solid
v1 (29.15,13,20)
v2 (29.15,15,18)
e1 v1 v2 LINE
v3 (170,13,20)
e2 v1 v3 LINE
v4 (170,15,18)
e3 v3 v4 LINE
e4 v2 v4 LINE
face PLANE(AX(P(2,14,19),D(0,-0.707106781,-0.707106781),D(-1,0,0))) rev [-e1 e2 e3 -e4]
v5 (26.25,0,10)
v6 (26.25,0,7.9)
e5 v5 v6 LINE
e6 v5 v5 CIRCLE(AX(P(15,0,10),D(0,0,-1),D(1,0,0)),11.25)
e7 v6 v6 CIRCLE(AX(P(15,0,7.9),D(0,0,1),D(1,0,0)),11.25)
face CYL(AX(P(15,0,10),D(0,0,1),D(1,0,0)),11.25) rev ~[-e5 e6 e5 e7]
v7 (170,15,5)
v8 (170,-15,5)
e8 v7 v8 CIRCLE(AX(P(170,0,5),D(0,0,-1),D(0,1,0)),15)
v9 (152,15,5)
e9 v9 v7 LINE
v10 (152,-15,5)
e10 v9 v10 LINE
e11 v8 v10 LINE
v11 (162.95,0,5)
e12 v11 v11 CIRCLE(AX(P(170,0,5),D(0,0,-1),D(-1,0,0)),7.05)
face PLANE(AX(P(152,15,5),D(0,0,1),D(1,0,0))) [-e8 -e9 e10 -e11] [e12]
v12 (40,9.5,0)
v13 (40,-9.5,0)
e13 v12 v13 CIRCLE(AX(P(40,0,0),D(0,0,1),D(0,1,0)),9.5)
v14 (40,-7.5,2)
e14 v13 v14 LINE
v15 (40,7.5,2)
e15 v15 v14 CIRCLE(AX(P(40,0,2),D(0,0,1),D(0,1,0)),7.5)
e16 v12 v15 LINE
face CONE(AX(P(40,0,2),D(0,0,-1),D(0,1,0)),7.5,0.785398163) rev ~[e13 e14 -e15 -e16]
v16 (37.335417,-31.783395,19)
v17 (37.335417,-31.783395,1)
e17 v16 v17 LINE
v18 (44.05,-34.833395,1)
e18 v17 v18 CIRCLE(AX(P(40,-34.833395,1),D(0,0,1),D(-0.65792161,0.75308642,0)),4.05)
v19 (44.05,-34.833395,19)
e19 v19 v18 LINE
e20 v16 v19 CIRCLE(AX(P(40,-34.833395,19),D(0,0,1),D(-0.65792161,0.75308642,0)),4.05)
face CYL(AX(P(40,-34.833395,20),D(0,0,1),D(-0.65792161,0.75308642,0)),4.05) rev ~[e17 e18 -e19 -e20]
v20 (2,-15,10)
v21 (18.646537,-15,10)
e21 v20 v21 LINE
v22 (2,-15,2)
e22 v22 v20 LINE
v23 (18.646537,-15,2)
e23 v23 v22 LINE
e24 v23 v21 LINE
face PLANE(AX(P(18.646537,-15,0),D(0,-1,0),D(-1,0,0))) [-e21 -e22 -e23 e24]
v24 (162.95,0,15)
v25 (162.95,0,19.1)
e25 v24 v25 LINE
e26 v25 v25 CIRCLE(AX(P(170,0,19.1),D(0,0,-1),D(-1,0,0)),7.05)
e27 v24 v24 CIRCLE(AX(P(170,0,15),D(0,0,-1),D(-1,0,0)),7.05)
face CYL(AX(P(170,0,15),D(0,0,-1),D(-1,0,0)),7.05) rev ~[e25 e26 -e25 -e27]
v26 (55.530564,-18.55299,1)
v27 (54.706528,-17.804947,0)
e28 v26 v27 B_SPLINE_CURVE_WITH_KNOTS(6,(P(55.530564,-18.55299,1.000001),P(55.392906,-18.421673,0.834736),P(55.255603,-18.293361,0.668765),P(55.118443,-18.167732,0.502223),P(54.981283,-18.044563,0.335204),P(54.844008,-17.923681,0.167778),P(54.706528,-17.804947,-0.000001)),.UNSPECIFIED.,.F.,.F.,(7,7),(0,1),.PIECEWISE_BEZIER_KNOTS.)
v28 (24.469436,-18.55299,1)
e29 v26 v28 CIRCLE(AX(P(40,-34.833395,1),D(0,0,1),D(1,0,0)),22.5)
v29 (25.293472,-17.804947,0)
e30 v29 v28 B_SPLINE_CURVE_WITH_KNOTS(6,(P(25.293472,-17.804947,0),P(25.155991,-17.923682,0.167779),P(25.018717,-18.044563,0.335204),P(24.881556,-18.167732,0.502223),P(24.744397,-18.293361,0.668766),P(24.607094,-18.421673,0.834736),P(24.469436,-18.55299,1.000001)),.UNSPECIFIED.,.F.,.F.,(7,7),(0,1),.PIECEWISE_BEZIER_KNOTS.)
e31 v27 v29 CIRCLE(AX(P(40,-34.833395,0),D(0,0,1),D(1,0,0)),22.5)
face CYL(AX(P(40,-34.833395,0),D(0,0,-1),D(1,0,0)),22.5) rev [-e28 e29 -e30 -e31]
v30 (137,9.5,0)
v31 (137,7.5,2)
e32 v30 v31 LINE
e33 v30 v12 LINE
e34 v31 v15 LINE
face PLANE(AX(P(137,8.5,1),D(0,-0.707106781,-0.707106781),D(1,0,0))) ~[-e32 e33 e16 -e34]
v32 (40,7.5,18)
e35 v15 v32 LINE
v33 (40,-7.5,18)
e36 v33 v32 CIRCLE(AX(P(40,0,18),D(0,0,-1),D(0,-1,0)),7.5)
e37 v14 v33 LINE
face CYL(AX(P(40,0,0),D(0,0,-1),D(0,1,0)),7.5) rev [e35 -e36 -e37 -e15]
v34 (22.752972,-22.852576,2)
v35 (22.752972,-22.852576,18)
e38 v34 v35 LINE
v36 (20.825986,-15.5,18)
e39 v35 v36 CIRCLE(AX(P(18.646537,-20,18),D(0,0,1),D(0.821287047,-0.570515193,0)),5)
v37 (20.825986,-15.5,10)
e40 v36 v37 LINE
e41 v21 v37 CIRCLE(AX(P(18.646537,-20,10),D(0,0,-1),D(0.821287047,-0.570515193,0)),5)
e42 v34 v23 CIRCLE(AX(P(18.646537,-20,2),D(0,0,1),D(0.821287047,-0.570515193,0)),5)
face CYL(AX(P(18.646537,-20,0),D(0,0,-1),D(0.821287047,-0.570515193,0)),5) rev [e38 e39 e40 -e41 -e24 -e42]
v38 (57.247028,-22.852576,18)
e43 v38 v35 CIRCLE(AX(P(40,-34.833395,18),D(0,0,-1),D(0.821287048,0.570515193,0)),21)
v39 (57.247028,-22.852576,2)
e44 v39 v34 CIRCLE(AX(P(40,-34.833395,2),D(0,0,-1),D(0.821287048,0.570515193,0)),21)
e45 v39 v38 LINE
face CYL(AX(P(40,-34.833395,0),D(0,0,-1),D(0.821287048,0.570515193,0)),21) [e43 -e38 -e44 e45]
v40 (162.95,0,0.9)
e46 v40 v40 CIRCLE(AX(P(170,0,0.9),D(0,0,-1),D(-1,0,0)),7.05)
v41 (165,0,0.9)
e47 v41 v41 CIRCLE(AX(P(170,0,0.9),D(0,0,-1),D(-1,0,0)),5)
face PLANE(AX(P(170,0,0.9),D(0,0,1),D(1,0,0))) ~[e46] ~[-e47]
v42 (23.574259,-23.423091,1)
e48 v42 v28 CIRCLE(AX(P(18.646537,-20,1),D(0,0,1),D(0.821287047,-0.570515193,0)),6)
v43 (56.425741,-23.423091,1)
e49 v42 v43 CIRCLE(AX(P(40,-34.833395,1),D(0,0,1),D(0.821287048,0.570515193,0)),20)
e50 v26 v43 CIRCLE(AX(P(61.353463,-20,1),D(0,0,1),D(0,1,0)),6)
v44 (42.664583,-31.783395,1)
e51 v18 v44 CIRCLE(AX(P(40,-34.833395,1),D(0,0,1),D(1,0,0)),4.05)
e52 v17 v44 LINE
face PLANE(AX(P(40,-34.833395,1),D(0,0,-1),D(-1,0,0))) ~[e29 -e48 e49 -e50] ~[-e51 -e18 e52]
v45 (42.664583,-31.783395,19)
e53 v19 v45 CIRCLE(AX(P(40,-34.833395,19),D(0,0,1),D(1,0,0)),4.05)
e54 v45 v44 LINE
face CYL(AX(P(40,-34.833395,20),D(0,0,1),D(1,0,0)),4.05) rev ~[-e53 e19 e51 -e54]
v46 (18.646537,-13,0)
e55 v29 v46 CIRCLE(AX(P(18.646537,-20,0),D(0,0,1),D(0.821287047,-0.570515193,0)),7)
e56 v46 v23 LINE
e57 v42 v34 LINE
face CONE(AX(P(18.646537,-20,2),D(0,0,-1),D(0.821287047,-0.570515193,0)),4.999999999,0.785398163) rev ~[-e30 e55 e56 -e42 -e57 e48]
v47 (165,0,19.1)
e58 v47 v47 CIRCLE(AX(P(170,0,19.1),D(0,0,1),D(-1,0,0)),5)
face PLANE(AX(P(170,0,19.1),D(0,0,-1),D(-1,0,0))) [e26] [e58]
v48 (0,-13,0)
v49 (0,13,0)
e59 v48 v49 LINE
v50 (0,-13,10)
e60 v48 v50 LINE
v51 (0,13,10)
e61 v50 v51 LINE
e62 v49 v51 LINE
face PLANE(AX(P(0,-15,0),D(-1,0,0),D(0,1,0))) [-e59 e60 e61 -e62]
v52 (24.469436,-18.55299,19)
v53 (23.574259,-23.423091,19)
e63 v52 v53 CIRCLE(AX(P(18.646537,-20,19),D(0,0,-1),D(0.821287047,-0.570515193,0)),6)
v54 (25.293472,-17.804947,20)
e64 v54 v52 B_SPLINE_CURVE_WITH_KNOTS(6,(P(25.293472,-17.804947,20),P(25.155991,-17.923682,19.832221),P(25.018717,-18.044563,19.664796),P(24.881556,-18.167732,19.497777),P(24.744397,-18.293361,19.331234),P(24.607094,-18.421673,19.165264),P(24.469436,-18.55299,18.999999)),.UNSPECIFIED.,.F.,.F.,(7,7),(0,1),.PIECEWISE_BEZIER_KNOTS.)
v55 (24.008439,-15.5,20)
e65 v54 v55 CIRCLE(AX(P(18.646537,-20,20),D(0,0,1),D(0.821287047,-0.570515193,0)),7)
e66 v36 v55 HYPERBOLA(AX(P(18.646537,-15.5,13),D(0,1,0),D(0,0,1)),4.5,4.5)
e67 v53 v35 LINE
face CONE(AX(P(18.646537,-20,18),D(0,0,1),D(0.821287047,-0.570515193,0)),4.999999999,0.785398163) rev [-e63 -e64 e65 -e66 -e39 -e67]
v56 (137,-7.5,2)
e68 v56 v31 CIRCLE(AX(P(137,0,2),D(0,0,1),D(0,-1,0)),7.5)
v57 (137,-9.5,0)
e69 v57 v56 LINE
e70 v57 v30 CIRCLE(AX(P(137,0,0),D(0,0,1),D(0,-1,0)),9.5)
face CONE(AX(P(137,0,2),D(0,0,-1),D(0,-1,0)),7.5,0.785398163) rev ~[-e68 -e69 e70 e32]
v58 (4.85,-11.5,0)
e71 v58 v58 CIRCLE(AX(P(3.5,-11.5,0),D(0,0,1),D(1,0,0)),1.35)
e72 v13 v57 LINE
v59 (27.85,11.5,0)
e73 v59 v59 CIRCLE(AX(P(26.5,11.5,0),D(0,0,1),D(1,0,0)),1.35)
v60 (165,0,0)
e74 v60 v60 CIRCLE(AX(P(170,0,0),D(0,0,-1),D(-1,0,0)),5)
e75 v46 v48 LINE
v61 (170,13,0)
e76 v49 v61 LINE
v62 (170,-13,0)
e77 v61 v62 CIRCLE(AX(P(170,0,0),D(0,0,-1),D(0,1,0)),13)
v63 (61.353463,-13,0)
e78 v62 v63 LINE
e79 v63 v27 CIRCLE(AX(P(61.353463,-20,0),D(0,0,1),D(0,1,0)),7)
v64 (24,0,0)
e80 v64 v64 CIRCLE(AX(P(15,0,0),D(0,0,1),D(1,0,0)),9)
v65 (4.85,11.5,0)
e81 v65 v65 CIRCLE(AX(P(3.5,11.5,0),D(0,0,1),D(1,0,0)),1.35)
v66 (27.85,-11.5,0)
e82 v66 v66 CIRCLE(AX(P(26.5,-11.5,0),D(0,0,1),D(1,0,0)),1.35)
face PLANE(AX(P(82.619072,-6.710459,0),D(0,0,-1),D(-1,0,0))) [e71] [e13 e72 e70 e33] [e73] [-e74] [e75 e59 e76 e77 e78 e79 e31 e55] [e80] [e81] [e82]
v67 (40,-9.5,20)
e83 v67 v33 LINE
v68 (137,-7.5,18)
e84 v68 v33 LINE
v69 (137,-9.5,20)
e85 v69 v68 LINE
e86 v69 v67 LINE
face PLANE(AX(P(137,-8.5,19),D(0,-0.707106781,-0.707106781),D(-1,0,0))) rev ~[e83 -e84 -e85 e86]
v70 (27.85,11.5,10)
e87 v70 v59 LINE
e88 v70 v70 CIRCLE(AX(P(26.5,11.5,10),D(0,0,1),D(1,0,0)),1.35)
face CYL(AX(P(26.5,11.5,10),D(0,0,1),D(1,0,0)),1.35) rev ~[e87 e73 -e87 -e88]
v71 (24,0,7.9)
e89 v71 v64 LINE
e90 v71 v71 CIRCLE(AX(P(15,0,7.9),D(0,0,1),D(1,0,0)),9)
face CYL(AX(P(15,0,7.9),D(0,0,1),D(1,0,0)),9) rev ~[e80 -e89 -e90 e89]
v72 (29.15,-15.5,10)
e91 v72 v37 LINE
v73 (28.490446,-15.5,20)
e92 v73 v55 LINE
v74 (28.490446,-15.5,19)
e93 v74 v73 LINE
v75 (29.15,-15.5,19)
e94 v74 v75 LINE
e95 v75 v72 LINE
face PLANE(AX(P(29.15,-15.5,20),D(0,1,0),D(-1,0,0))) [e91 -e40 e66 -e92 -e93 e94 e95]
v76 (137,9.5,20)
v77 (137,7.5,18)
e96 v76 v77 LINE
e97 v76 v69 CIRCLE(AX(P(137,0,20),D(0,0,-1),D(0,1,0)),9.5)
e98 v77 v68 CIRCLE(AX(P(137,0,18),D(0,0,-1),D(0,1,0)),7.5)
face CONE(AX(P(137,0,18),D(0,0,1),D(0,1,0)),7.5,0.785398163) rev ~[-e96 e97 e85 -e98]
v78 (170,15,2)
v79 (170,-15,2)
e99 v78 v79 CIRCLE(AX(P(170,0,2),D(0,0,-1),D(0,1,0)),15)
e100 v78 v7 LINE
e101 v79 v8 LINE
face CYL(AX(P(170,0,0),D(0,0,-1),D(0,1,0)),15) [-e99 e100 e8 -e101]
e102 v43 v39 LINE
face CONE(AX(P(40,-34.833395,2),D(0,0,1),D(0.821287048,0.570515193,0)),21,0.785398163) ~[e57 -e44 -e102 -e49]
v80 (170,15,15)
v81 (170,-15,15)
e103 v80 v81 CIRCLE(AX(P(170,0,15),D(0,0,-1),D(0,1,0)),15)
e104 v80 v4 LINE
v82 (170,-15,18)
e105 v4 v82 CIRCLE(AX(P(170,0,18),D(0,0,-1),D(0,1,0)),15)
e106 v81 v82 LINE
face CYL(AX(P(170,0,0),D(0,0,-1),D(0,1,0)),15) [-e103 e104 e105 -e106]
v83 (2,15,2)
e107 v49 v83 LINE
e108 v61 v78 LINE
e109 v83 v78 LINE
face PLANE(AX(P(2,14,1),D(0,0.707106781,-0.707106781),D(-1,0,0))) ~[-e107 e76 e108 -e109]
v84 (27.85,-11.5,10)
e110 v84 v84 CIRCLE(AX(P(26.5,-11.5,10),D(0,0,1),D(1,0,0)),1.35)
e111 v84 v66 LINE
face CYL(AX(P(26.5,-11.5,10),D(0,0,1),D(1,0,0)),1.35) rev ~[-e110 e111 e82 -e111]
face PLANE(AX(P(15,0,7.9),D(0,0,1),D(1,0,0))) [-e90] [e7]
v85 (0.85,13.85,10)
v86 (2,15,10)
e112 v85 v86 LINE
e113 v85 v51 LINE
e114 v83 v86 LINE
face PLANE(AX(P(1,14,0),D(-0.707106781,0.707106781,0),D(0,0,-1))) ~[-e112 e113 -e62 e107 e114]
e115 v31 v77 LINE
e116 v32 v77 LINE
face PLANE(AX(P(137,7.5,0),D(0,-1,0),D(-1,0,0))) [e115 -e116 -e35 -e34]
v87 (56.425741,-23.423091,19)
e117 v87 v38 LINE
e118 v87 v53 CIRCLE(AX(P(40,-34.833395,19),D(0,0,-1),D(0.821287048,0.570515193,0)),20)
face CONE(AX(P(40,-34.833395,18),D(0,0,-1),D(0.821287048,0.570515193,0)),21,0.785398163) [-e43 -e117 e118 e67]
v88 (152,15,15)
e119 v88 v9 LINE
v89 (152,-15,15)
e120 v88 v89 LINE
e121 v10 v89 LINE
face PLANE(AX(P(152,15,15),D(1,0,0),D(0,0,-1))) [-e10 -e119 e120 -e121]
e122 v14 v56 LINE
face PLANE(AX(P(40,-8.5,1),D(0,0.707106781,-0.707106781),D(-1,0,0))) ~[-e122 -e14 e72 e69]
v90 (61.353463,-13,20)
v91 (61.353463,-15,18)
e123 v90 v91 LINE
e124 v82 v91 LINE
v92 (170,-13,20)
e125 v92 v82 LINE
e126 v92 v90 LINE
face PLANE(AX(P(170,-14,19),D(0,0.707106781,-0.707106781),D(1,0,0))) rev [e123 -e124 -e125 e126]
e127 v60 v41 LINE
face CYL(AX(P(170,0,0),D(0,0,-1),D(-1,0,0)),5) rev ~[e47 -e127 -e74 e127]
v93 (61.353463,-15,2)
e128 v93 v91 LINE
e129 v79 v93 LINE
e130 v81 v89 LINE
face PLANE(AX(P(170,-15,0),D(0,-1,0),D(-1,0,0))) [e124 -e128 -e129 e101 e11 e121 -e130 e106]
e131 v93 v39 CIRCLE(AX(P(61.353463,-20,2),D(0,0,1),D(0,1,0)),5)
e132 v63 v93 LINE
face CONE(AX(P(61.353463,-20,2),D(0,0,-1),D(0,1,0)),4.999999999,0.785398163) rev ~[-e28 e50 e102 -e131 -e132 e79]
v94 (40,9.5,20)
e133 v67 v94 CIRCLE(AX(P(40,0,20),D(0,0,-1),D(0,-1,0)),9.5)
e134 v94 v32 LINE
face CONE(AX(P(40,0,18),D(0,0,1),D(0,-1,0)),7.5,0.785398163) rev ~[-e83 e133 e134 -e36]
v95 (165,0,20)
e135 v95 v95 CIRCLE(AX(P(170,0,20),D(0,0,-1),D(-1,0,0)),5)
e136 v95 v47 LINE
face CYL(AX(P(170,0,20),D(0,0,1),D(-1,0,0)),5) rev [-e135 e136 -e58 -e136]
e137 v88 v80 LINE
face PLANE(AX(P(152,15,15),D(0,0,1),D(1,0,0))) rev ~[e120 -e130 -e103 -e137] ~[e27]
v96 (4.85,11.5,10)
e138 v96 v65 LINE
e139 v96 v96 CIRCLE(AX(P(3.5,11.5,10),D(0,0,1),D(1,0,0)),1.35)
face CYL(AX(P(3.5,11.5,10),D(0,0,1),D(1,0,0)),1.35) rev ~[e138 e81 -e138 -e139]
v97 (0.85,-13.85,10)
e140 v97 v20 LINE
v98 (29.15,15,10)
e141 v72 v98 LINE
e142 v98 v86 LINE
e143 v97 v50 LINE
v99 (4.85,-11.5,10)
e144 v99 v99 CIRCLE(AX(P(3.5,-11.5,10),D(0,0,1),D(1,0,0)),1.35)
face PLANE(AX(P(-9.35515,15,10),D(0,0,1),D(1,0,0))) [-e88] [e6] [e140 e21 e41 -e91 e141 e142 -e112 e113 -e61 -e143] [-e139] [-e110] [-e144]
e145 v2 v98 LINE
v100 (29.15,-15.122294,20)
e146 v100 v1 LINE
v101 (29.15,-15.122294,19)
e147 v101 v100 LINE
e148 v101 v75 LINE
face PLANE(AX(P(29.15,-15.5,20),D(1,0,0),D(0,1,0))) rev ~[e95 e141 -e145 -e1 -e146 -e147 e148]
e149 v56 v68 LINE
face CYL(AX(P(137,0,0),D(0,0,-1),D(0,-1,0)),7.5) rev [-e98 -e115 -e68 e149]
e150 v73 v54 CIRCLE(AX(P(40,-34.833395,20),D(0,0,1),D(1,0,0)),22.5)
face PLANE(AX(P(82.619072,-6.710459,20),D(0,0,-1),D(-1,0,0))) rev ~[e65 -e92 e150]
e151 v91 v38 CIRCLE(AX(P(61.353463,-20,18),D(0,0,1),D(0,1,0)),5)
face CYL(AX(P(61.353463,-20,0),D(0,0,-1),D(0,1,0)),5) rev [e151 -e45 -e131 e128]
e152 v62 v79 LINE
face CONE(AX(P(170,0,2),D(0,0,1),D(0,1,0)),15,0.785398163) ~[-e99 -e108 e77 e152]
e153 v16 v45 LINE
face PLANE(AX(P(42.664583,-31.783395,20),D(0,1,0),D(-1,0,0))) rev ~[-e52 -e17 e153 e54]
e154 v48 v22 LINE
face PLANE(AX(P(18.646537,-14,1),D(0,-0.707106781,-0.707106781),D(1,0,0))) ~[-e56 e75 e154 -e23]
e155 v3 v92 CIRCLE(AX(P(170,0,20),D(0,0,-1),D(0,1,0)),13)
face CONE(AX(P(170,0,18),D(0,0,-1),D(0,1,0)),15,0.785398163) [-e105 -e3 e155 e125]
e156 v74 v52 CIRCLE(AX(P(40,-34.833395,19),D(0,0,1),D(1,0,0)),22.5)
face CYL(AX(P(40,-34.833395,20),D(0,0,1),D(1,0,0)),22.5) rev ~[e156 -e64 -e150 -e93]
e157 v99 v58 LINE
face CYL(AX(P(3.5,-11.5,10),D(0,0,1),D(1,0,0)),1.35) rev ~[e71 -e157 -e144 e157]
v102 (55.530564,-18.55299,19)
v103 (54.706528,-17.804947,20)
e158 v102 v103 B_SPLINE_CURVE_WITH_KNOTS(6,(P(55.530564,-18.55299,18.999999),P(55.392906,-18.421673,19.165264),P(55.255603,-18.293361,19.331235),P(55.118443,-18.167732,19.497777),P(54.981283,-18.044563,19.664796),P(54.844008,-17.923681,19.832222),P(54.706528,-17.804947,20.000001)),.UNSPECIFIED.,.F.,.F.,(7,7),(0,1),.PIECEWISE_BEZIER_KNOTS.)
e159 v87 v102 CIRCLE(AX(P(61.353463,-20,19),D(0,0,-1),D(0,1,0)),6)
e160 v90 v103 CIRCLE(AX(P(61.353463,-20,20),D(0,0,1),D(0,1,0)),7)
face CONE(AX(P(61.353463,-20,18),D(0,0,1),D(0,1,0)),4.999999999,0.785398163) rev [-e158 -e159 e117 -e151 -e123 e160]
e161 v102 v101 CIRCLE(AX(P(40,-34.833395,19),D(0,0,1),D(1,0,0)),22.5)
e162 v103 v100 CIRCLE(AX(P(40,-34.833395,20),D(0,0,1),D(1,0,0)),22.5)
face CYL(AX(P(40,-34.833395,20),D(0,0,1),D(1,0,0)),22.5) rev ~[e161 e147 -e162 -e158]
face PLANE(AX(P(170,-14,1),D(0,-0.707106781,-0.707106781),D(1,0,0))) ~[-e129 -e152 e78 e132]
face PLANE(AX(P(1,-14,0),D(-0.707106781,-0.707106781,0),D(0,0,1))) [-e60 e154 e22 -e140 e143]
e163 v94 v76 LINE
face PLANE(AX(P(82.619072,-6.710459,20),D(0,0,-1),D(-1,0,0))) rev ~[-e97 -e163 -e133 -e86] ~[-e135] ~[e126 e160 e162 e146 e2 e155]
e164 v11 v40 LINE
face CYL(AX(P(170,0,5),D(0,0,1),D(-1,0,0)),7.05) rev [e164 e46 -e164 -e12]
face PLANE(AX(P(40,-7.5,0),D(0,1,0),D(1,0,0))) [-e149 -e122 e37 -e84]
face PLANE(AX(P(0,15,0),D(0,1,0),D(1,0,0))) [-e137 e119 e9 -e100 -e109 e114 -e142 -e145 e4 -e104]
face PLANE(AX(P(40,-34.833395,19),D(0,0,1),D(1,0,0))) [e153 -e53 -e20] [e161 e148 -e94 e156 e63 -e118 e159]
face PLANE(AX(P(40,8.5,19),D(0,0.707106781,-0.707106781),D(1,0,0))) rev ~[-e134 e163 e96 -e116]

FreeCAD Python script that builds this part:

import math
import FreeCAD as App
import Part
import Sketcher


def edges_at(feature, points):
    """Names of the edges that pass closest to the given points."""
    edges = feature.Shape.Edges
    near = lambda p: min(range(len(edges)), key=lambda i: edges[i].distToShape(Part.Vertex(*p))[0])
    return sorted({f"Edge{near(p) + 1}" for p in points})

doc = App.newDocument("Part")
params = doc.addObject("Spreadsheet::Sheet", "Params")
for row, (alias, value) in enumerate([
    ("sketch1_radius", "5 mm"),
    ("sketch1_radius2", "21 mm"),
    ("sketch1_radius3", "15 mm"),
    ("sketch1_width", "170 mm"),
    ("pad1_length", "20 mm"),
    ("chamfer_size", "2 mm"),
    ("sketch2_diameter", "10 mm"),
    ("pocket1_length", "5 mm"),
    ("sketch3_width", "36 mm"),
    ("sketch3_height", "10 mm"),
    ("sketch4_radius", "7.5 mm"),
    ("sketch4_width", "97 mm"),
    ("chamfer2_size", "2 mm"),
    ("chamfer3_size", "2 mm"),
    ("chamfer4_size", "2 mm"),
    ("sketch5_height", "31 mm"),
    ("sketch5_width", "28.3 mm"),
    ("pocket4_length", "10 mm"),
    ("sketch6_diameter", "22.5 mm"),
    ("pocket5_length", "2.1 mm"),
    ("sketch7_diameter", "2.7 mm"),
    ("sketch8_radius", "4.05 mm"),
    ("sketch10_diameter", "18 mm"),
    ("sketch11_diameter", "14.1 mm"),
    ("pocket10_length", "4.1 mm"),
    ("sketch12_diameter", "45 mm"),
    ("pocket11_length", "1 mm"),
], start=1):
    params.set(f"A{row}", alias)
    params.set(f"B{row}", "=" + value)
    params.setAlias(f"B{row}", alias)

body = doc.addObject("PartDesign::Body", "Body")

# Sketch on XY plane
sketch1 = doc.addObject("Sketcher::SketchObject", "Sketch")
body.addObject(sketch1)
sketch1.AttachmentSupport = (doc.XY_Plane, [""])
sketch1.MapMode = "FlatFace"
sketch1.addGeometry(Part.LineSegment(App.Vector(170, 15, 0), App.Vector(0, 15, 0)), False)
sketch1.addGeometry(Part.LineSegment(App.Vector(0, 15, 0), App.Vector(0, -15, 0)), False)
sketch1.addGeometry(Part.LineSegment(App.Vector(0, -15, 0), App.Vector(18.6, -15, 0)), False)
sketch1.addGeometry(Part.ArcOfCircle(Part.Circle(App.Vector(18.6, -20, 0), App.Vector(0, 0, 1), 5), math.radians(-35), math.radians(90)), False)
sketch1.addGeometry(Part.ArcOfCircle(Part.Circle(App.Vector(40, -34.8, 0), App.Vector(0, 0, 1), 21), math.radians(145), math.radians(395)), False)
sketch1.addGeometry(Part.ArcOfCircle(Part.Circle(App.Vector(61.4, -20, 0), App.Vector(0, 0, 1), 5), math.radians(90), math.radians(215)), False)
sketch1.addGeometry(Part.LineSegment(App.Vector(61.4, -15, 0), App.Vector(170, -15, 0)), False)
sketch1.addGeometry(Part.ArcOfCircle(Part.Circle(App.Vector(170, 0, 0), App.Vector(0, 0, 1), 15), math.radians(-90), math.radians(90)), False)
sketch1.addConstraint(Sketcher.Constraint("Coincident", 0, 2, 1, 1))
sketch1.addConstraint(Sketcher.Constraint("Coincident", 1, 2, 2, 1))
sketch1.addConstraint(Sketcher.Constraint("Tangent", 2, 2, 3, 2))
sketch1.addConstraint(Sketcher.Constraint("Tangent", 3, 1, 4, 1))
sketch1.addConstraint(Sketcher.Constraint("Tangent", 4, 2, 5, 2))
sketch1.addConstraint(Sketcher.Constraint("Tangent", 5, 1, 6, 1))
sketch1.addConstraint(Sketcher.Constraint("Tangent", 6, 2, 7, 1))
sketch1.addConstraint(Sketcher.Constraint("Tangent", 7, 2, 0, 1))
sketch1.addConstraint(Sketcher.Constraint("Horizontal", 0))
sketch1.addConstraint(Sketcher.Constraint("Vertical", 1))
sketch1.addConstraint(Sketcher.Constraint("Horizontal", 2))
sketch1.addConstraint(Sketcher.Constraint("Horizontal", 6))
sketch1.addConstraint(Sketcher.Constraint("Equal", 3, 5))
sketch1.addConstraint(Sketcher.Constraint("Symmetric", 0, 2, 1, 2, -1, 1))
sketch1.addConstraint(Sketcher.Constraint("PointOnObject", 7, 3, -1))
sketch1.addConstraint(Sketcher.Constraint("Radius", 3, 5.0))
sketch1.addConstraint(Sketcher.Constraint("Radius", 4, 21.0))
sketch1.addConstraint(Sketcher.Constraint("Radius", 7, 15.0))
sketch1.addConstraint(Sketcher.Constraint("DistanceX", 0, 2, 0, 1, 170.0))
sketch1.addConstraint(Sketcher.Constraint("DistanceX", -1, 1, 4, 3, 40.0))
sketch1.addConstraint(Sketcher.Constraint("DistanceX", 2, 1, 2, 2, 18.646537))
sketch1.setExpression("Constraints[15]", "Params.sketch1_radius")
sketch1.setExpression("Constraints[16]", "Params.sketch1_radius2")
sketch1.setExpression("Constraints[17]", "Params.sketch1_radius3")
sketch1.setExpression("Constraints[18]", "Params.sketch1_width")
pad1 = doc.addObject("PartDesign::Pad", "Pad")
body.addObject(pad1)
pad1.Profile = sketch1
pad1.setExpression("Length", "Params.pad1_length")
doc.recompute()

chamfer = doc.addObject("PartDesign::Chamfer", "Chamfer")
body.addObject(chamfer)
chamfer.Base = (pad1, edges_at(pad1, [(0, -15, 10), (0, 15, 10)]))
chamfer.setExpression("Size", "Params.chamfer_size")

# Sketch on XY plane
sketch2 = doc.addObject("Sketcher::SketchObject", "Sketch001")
body.addObject(sketch2)
sketch2.AttachmentSupport = (doc.XY_Plane, [""])
sketch2.MapMode = "FlatFace"
sketch2.addGeometry(Part.Circle(App.Vector(170, 0, 0), App.Vector(0, 0, 1), 5), False)
sketch2.addConstraint(Sketcher.Constraint("PointOnObject", 0, 3, -1))
sketch2.addConstraint(Sketcher.Constraint("Diameter", 0, 10.0))
sketch2.addConstraint(Sketcher.Constraint("DistanceX", -1, 1, 0, 3, 170.0))
sketch2.setExpression("Constraints[1]", "Params.sketch2_diameter")
pocket1 = doc.addObject("PartDesign::Pocket", "Pocket")
body.addObject(pocket1)
pocket1.Profile = sketch2
pocket1.setExpression("Length", "Params.pocket1_length")
pocket1.Reversed = True

# Sketch on XZ plane
sketch3 = doc.addObject("Sketcher::SketchObject", "Sketch002")
body.addObject(sketch3)
sketch3.AttachmentSupport = (doc.XZ_Plane, [""])
sketch3.MapMode = "FlatFace"
sketch3.AttachmentOffset = App.Placement(App.Vector(0, 0, -15), App.Rotation())
sketch3.addGeometry(Part.LineSegment(App.Vector(152, 5, 0), App.Vector(152, 15, 0)), False)
sketch3.addGeometry(Part.LineSegment(App.Vector(152, 15, 0), App.Vector(188, 15, 0)), False)
sketch3.addGeometry(Part.LineSegment(App.Vector(188, 15, 0), App.Vector(188, 5, 0)), False)
sketch3.addGeometry(Part.LineSegment(App.Vector(188, 5, 0), App.Vector(152, 5, 0)), False)
sketch3.addConstraint(Sketcher.Constraint("Coincident", 0, 2, 1, 1))
sketch3.addConstraint(Sketcher.Constraint("Coincident", 1, 2, 2, 1))
sketch3.addConstraint(Sketcher.Constraint("Coincident", 2, 2, 3, 1))
sketch3.addConstraint(Sketcher.Constraint("Coincident", 3, 2, 0, 1))
sketch3.addConstraint(Sketcher.Constraint("Vertical", 0))
sketch3.addConstraint(Sketcher.Constraint("Horizontal", 1))
sketch3.addConstraint(Sketcher.Constraint("Vertical", 2))
sketch3.addConstraint(Sketcher.Constraint("Horizontal", 3))
sketch3.addConstraint(Sketcher.Constraint("DistanceX", 1, 1, 1, 2, 36.0))
sketch3.addConstraint(Sketcher.Constraint("DistanceY", 0, 1, 0, 2, 10.0))
sketch3.addConstraint(Sketcher.Constraint("DistanceX", -1, 1, 0, 2, 152.0))
sketch3.addConstraint(Sketcher.Constraint("DistanceY", -1, 1, 0, 2, 15.0))
sketch3.setExpression("Constraints[8]", "Params.sketch3_width")
sketch3.setExpression("Constraints[9]", "Params.sketch3_height")
pocket2 = doc.addObject("PartDesign::Pocket", "Pocket001")
body.addObject(pocket2)
pocket2.Profile = sketch3
pocket2.Type = "ThroughAll"
pocket2.Reversed = True

# Sketch on XY plane
sketch4 = doc.addObject("Sketcher::SketchObject", "Sketch003")
body.addObject(sketch4)
sketch4.AttachmentSupport = (doc.XY_Plane, [""])
sketch4.MapMode = "FlatFace"
sketch4.addGeometry(Part.LineSegment(App.Vector(137, -8, 0), App.Vector(40, -8, 0)), False)
sketch4.addGeometry(Part.ArcOfCircle(Part.Circle(App.Vector(40, 0, 0), App.Vector(0, 0, 1), 8), math.radians(90), math.radians(270)), False)
sketch4.addGeometry(Part.LineSegment(App.Vector(40, 8, 0), App.Vector(137, 8, 0)), False)
sketch4.addGeometry(Part.ArcOfCircle(Part.Circle(App.Vector(137, 0, 0), App.Vector(0, 0, 1), 8), math.radians(-90), math.radians(90)), False)
sketch4.addConstraint(Sketcher.Constraint("Tangent", 0, 2, 1, 2))
sketch4.addConstraint(Sketcher.Constraint("Tangent", 1, 1, 2, 1))
sketch4.addConstraint(Sketcher.Constraint("Tangent", 2, 2, 3, 2))
sketch4.addConstraint(Sketcher.Constraint("Tangent", 3, 1, 0, 1))
sketch4.addConstraint(Sketcher.Constraint("Horizontal", 0))
sketch4.addConstraint(Sketcher.Constraint("Horizontal", 2))
sketch4.addConstraint(Sketcher.Constraint("PointOnObject", 1, 3, -1))
sketch4.addConstraint(Sketcher.Constraint("Radius", 1, 7.5))
sketch4.addConstraint(Sketcher.Constraint("DistanceX", 0, 2, 0, 1, 97.0))
sketch4.addConstraint(Sketcher.Constraint("DistanceX", -1, 1, 1, 3, 40.0))
sketch4.setExpression("Constraints[7]", "Params.sketch4_radius")
sketch4.setExpression("Constraints[8]", "Params.sketch4_width")
pocket3 = doc.addObject("PartDesign::Pocket", "Pocket002")
body.addObject(pocket3)
pocket3.Profile = sketch4
pocket3.Type = "ThroughAll"
pocket3.Reversed = True
doc.recompute()

chamfer2 = doc.addObject("PartDesign::Chamfer", "Chamfer001")
body.addObject(chamfer2)
chamfer2.Base = (pocket3, edges_at(pocket3, [
    (32.5, 0, 20),
    (88.5, -7.5, 20),
    (144.5, 0, 20),
    (88.5, 7.5, 20),
    (32.5, 0, 0),
    (88.5, 7.5, 0),
    (144.5, 0, 0),
    (88.5, -7.5, 0),
]))
chamfer2.setExpression("Size", "Params.chamfer2_size")
doc.recompute()

chamfer3 = doc.addObject("PartDesign::Chamfer", "Chamfer002")
body.addObject(chamfer3)
chamfer3.Base = (chamfer2, edges_at(chamfer2, [
    (10.323, -15, 0),
    (23.077, -17.683, 0),
    (40, -55.833, 0),
    (56.923, -17.683, 0),
    (115.677, -15, 0),
    (185, 0, 0),
    (86, 15, 0),
]))
chamfer3.setExpression("Size", "Params.chamfer3_size")
doc.recompute()

chamfer4 = doc.addObject("PartDesign::Chamfer", "Chamfer003")
body.addObject(chamfer4)
chamfer4.Base = (chamfer3, edges_at(chamfer3, [
    (10.323, -15, 20),
    (23.077, -17.683, 20),
    (40, -55.833, 20),
    (56.923, -17.683, 20),
    (115.677, -15, 20),
    (185, 0, 20),
    (86, 15, 20),
]))
chamfer4.setExpression("Size", "Params.chamfer4_size")
doc.recompute()

datumplane = doc.addObject("PartDesign::Plane", "DatumPlane")
body.addObject(datumplane)
datumplane.AttachmentSupport = (doc.XY_Plane, [""])
datumplane.MapMode = "FlatFace"
datumplane.AttachmentOffset = App.Placement(App.Vector(0, 0, 10), App.Rotation())
mirrored = doc.addObject("PartDesign::Mirrored", "Mirrored")
body.addObject(mirrored)
mirrored.Originals = [pocket1]
mirrored.MirrorPlane = (datumplane, [""])
body.Tip = mirrored

# Sketch on XY plane
sketch5 = doc.addObject("Sketcher::SketchObject", "Sketch004")
body.addObject(sketch5)
sketch5.AttachmentSupport = (doc.XY_Plane, [""])
sketch5.MapMode = "FlatFace"
sketch5.AttachmentOffset = App.Placement(App.Vector(0, 0, 20), App.Rotation())
sketch5.addGeometry(Part.LineSegment(App.Vector(29, 16, 0), App.Vector(29, -16, 0)), False)
sketch5.addGeometry(Part.LineSegment(App.Vector(29, -16, 0), App.Vector(1, -16, 0)), False)
sketch5.addGeometry(Part.LineSegment(App.Vector(1, -16, 0), App.Vector(1, 16, 0)), False)
sketch5.addGeometry(Part.LineSegment(App.Vector(1, 16, 0), App.Vector(29, 16, 0)), False)
sketch5.addConstraint(Sketcher.Constraint("Coincident", 0, 2, 1, 1))
sketch5.addConstraint(Sketcher.Constraint("Coincident", 1, 2, 2, 1))
sketch5.addConstraint(Sketcher.Constraint("Coincident", 2, 2, 3, 1))
sketch5.addConstraint(Sketcher.Constraint("Coincident", 3, 2, 0, 1))
sketch5.addConstraint(Sketcher.Constraint("Vertical", 0))
sketch5.addConstraint(Sketcher.Constraint("Horizontal", 1))
sketch5.addConstraint(Sketcher.Constraint("Vertical", 2))
sketch5.addConstraint(Sketcher.Constraint("Horizontal", 3))
sketch5.addConstraint(Sketcher.Constraint("DistanceY", 0, 2, 0, 1, 31.0))
sketch5.addConstraint(Sketcher.Constraint("DistanceX", 1, 2, 1, 1, 28.3))
sketch5.addConstraint(Sketcher.Constraint("DistanceY", 0, 2, -1, 1, 15.5))
sketch5.addConstraint(Sketcher.Constraint("DistanceX", -1, 1, 0, 2, 29.15))
sketch5.setExpression("Constraints[8]", "Params.sketch5_height")
sketch5.setExpression("Constraints[9]", "Params.sketch5_width")
pocket4 = doc.addObject("PartDesign::Pocket", "Pocket003")
body.addObject(pocket4)
pocket4.Profile = sketch5
pocket4.setExpression("Length", "Params.pocket4_length")

# Sketch on XY plane
sketch6 = doc.addObject("Sketcher::SketchObject", "Sketch005")
body.addObject(sketch6)
sketch6.AttachmentSupport = (doc.XY_Plane, [""])
sketch6.MapMode = "FlatFace"
sketch6.AttachmentOffset = App.Placement(App.Vector(0, 0, 10), App.Rotation())
sketch6.addGeometry(Part.Circle(App.Vector(15, 0, 0), App.Vector(0, 0, 1), 11), False)
sketch6.addConstraint(Sketcher.Constraint("PointOnObject", 0, 3, -1))
sketch6.addConstraint(Sketcher.Constraint("Diameter", 0, 22.5))
sketch6.addConstraint(Sketcher.Constraint("DistanceX", -1, 1, 0, 3, 15.0))
sketch6.setExpression("Constraints[1]", "Params.sketch6_diameter")
pocket5 = doc.addObject("PartDesign::Pocket", "Pocket004")
body.addObject(pocket5)
pocket5.Profile = sketch6
pocket5.setExpression("Length", "Params.pocket5_length")

# Sketch on XY plane
sketch7 = doc.addObject("Sketcher::SketchObject", "Sketch006")
body.addObject(sketch7)
sketch7.AttachmentSupport = (doc.XY_Plane, [""])
sketch7.MapMode = "FlatFace"
sketch7.AttachmentOffset = App.Placement(App.Vector(0, 0, 10), App.Rotation())
sketch7.addGeometry(Part.Circle(App.Vector(26.5, 11.5, 0), App.Vector(0, 0, 1), 1.4), False)
sketch7.addGeometry(Part.Circle(App.Vector(3.5, 11.5, 0), App.Vector(0, 0, 1), 1.4), False)
sketch7.addGeometry(Part.Circle(App.Vector(3.5, -11.5, 0), App.Vector(0, 0, 1), 1.4), False)
sketch7.addGeometry(Part.Circle(App.Vector(26.5, -11.5, 0), App.Vector(0, 0, 1), 1.4), False)
sketch7.addConstraint(Sketcher.Constraint("Equal", 0, 1))
sketch7.addConstraint(Sketcher.Constraint("Equal", 1, 2))
sketch7.addConstraint(Sketcher.Constraint("Equal", 2, 3))
sketch7.addConstraint(Sketcher.Constraint("Symmetric", 1, 3, 2, 3, -1))
sketch7.addConstraint(Sketcher.Constraint("Symmetric", 0, 3, 3, 3, -1))
sketch7.addConstraint(Sketcher.Constraint("Horizontal", 0, 3, 1, 3))
sketch7.addConstraint(Sketcher.Constraint("Diameter", 0, 2.7))
sketch7.addConstraint(Sketcher.Constraint("DistanceX", 1, 3, 0, 3, 23.0))
sketch7.addConstraint(Sketcher.Constraint("DistanceY", 2, 3, 1, 3, 23.0))
sketch7.addConstraint(Sketcher.Constraint("DistanceX", -1, 1, 0, 3, 26.5))
sketch7.setExpression("Constraints[6]", "Params.sketch7_diameter")
pocket6 = doc.addObject("PartDesign::Pocket", "Pocket005")
body.addObject(pocket6)
pocket6.Profile = sketch7
pocket6.Type = "ThroughAll"

# Sketch on XY plane
sketch8 = doc.addObject("Sketcher::SketchObject", "Sketch007")
body.addObject(sketch8)
sketch8.AttachmentSupport = (doc.XY_Plane, [""])
sketch8.MapMode = "FlatFace"
sketch8.AttachmentOffset = App.Placement(App.Vector(0, 0, 20), App.Rotation())
sketch8.addGeometry(Part.LineSegment(App.Vector(42.7, -31.8, 0), App.Vector(37.3, -31.8, 0)), False)
sketch8.addGeometry(Part.ArcOfCircle(Part.Circle(App.Vector(40, -34.8, 0), App.Vector(0, 0, 1), 4), math.radians(131), math.radians(360)), False)
sketch8.addGeometry(Part.ArcOfCircle(Part.Circle(App.Vector(40, -34.8, 0), App.Vector(0, 0, 1), 4), math.radians(0), math.radians(49)), False)
sketch8.addConstraint(Sketcher.Constraint("Coincident", 0, 2, 1, 1))
sketch8.addConstraint(Sketcher.Constraint("Tangent", 1, 2, 2, 1))
sketch8.addConstraint(Sketcher.Constraint("Coincident", 2, 2, 0, 1))
sketch8.addConstraint(Sketcher.Constraint("Horizontal", 0))
sketch8.addConstraint(Sketcher.Constraint("Equal", 1, 2))
sketch8.addConstraint(Sketcher.Constraint("Horizontal", 2, 3, 1, 2))
sketch8.addConstraint(Sketcher.Constraint("Radius", 1, 4.05))
sketch8.addConstraint(Sketcher.Constraint("DistanceX", -1, 1, 1, 3, 40.0))
sketch8.addConstraint(Sketcher.Constraint("DistanceY", 1, 3, 0, 2, 3.05))
sketch8.addConstraint(Sketcher.Constraint("DistanceY", 1, 3, -1, 1, 34.833395))
sketch8.setExpression("Constraints[6]", "Params.sketch8_radius")
pocket7 = doc.addObject("PartDesign::Pocket", "Pocket006")
body.addObject(pocket7)
pocket7.Profile = sketch8
pocket7.Type = "ThroughAll"

# Sketch on XZ plane
sketch9 = doc.addObject("Sketcher::SketchObject", "Sketch008")
body.addObject(sketch9)
sketch9.AttachmentSupport = (doc.XZ_Plane, [""])
sketch9.MapMode = "FlatFace"
sketch9.AttachmentOffset = App.Placement(App.Vector(0, 0, -15), App.Rotation())
sketch9.addGeometry(Part.LineSegment(App.Vector(-9, 10, 0), App.Vector(-9, 22, 0)), False)
sketch9.addGeometry(Part.LineSegment(App.Vector(-9, 22, 0), App.Vector(12, 22, 0)), False)
sketch9.addGeometry(Part.LineSegment(App.Vector(12, 22, 0), App.Vector(12, 10, 0)), False)
sketch9.addGeometry(Part.LineSegment(App.Vector(12, 10, 0), App.Vector(-9, 10, 0)), False)
sketch9.addConstraint(Sketcher.Constraint("Coincident", 0, 2, 1, 1))
sketch9.addConstraint(Sketcher.Constraint("Coincident", 1, 2, 2, 1))
sketch9.addConstraint(Sketcher.Constraint("Coincident", 2, 2, 3, 1))
sketch9.addConstraint(Sketcher.Constraint("Coincident", 3, 2, 0, 1))
sketch9.addConstraint(Sketcher.Constraint("Vertical", 0))
sketch9.addConstraint(Sketcher.Constraint("Horizontal", 1))
sketch9.addConstraint(Sketcher.Constraint("Vertical", 2))
sketch9.addConstraint(Sketcher.Constraint("Horizontal", 3))
sketch9.addConstraint(Sketcher.Constraint("DistanceY", -1, 1, 2, 2, 10.0))
sketch9.addConstraint(Sketcher.Constraint("DistanceX", 1, 1, 1, 2, 21.182127))
sketch9.addConstraint(Sketcher.Constraint("DistanceY", 0, 1, 0, 2, 11.878785))
sketch9.addConstraint(Sketcher.Constraint("DistanceX", 0, 2, -1, 1, 9.35515))
pocket8 = doc.addObject("PartDesign::Pocket", "Pocket007")
body.addObject(pocket8)
pocket8.Profile = sketch9
pocket8.Type = "ThroughAll"
pocket8.Reversed = True

# Sketch on XY plane
sketch10 = doc.addObject("Sketcher::SketchObject", "Sketch009")
body.addObject(sketch10)
sketch10.AttachmentSupport = (doc.XY_Plane, [""])
sketch10.MapMode = "FlatFace"
sketch10.AttachmentOffset = App.Placement(App.Vector(0, 0, 7.9), App.Rotation())
sketch10.addGeometry(Part.Circle(App.Vector(15, 0, 0), App.Vector(0, 0, 1), 9), False)
sketch10.addConstraint(Sketcher.Constraint("PointOnObject", 0, 3, -1))
sketch10.addConstraint(Sketcher.Constraint("Diameter", 0, 18.0))
sketch10.addConstraint(Sketcher.Constraint("DistanceX", -1, 1, 0, 3, 15.0))
sketch10.setExpression("Constraints[1]", "Params.sketch10_diameter")
pocket9 = doc.addObject("PartDesign::Pocket", "Pocket008")
body.addObject(pocket9)
pocket9.Profile = sketch10
pocket9.Type = "ThroughAll"

# Sketch on XY plane
sketch11 = doc.addObject("Sketcher::SketchObject", "Sketch010")
body.addObject(sketch11)
sketch11.AttachmentSupport = (doc.XY_Plane, [""])
sketch11.MapMode = "FlatFace"
sketch11.AttachmentOffset = App.Placement(App.Vector(0, 0, 15), App.Rotation())
sketch11.addGeometry(Part.Circle(App.Vector(170, 0, 0), App.Vector(0, 0, 1), 7), False)
sketch11.addConstraint(Sketcher.Constraint("PointOnObject", 0, 3, -1))
sketch11.addConstraint(Sketcher.Constraint("Diameter", 0, 14.1))
sketch11.addConstraint(Sketcher.Constraint("DistanceX", -1, 1, 0, 3, 170.0))
sketch11.setExpression("Constraints[1]", "Params.sketch11_diameter")
pocket10 = doc.addObject("PartDesign::Pocket", "Pocket009")
body.addObject(pocket10)
pocket10.Profile = sketch11
pocket10.setExpression("Length", "Params.pocket10_length")
pocket10.Reversed = True
doc.recompute()

datumplane2 = doc.addObject("PartDesign::Plane", "DatumPlane001")
body.addObject(datumplane2)
datumplane2.AttachmentSupport = (doc.XY_Plane, [""])
datumplane2.MapMode = "FlatFace"
datumplane2.AttachmentOffset = App.Placement(App.Vector(0, 0, 10), App.Rotation())
mirrored2 = doc.addObject("PartDesign::Mirrored", "Mirrored001")
body.addObject(mirrored2)
mirrored2.Originals = [pocket10]
mirrored2.MirrorPlane = (datumplane2, [""])
body.Tip = mirrored2

# Sketch on XY plane
sketch12 = doc.addObject("Sketcher::SketchObject", "Sketch011")
body.addObject(sketch12)
sketch12.AttachmentSupport = (doc.XY_Plane, [""])
sketch12.MapMode = "FlatFace"
sketch12.AttachmentOffset = App.Placement(App.Vector(0, 0, 20), App.Rotation())
sketch12.addGeometry(Part.Circle(App.Vector(40, -35, 0), App.Vector(0, 0, 1), 22), False)
sketch12.addConstraint(Sketcher.Constraint("Diameter", 0, 45.0))
sketch12.addConstraint(Sketcher.Constraint("DistanceX", -1, 1, 0, 3, 40.0))
sketch12.addConstraint(Sketcher.Constraint("DistanceY", 0, 3, -1, 1, 34.833395))
sketch12.setExpression("Constraints[0]", "Params.sketch12_diameter")
pocket11 = doc.addObject("PartDesign::Pocket", "Pocket010")
body.addObject(pocket11)
pocket11.Profile = sketch12
pocket11.setExpression("Length", "Params.pocket11_length")
doc.recompute()

datumplane3 = doc.addObject("PartDesign::Plane", "DatumPlane002")
body.addObject(datumplane3)
datumplane3.AttachmentSupport = (doc.XY_Plane, [""])
datumplane3.MapMode = "FlatFace"
datumplane3.AttachmentOffset = App.Placement(App.Vector(0, 0, 10), App.Rotation())
mirrored3 = doc.addObject("PartDesign::Mirrored", "Mirrored002")
body.addObject(mirrored3)
mirrored3.Originals = [pocket11]
mirrored3.MirrorPlane = (datumplane3, [""])
body.Tip = mirrored3

doc.recompute()
